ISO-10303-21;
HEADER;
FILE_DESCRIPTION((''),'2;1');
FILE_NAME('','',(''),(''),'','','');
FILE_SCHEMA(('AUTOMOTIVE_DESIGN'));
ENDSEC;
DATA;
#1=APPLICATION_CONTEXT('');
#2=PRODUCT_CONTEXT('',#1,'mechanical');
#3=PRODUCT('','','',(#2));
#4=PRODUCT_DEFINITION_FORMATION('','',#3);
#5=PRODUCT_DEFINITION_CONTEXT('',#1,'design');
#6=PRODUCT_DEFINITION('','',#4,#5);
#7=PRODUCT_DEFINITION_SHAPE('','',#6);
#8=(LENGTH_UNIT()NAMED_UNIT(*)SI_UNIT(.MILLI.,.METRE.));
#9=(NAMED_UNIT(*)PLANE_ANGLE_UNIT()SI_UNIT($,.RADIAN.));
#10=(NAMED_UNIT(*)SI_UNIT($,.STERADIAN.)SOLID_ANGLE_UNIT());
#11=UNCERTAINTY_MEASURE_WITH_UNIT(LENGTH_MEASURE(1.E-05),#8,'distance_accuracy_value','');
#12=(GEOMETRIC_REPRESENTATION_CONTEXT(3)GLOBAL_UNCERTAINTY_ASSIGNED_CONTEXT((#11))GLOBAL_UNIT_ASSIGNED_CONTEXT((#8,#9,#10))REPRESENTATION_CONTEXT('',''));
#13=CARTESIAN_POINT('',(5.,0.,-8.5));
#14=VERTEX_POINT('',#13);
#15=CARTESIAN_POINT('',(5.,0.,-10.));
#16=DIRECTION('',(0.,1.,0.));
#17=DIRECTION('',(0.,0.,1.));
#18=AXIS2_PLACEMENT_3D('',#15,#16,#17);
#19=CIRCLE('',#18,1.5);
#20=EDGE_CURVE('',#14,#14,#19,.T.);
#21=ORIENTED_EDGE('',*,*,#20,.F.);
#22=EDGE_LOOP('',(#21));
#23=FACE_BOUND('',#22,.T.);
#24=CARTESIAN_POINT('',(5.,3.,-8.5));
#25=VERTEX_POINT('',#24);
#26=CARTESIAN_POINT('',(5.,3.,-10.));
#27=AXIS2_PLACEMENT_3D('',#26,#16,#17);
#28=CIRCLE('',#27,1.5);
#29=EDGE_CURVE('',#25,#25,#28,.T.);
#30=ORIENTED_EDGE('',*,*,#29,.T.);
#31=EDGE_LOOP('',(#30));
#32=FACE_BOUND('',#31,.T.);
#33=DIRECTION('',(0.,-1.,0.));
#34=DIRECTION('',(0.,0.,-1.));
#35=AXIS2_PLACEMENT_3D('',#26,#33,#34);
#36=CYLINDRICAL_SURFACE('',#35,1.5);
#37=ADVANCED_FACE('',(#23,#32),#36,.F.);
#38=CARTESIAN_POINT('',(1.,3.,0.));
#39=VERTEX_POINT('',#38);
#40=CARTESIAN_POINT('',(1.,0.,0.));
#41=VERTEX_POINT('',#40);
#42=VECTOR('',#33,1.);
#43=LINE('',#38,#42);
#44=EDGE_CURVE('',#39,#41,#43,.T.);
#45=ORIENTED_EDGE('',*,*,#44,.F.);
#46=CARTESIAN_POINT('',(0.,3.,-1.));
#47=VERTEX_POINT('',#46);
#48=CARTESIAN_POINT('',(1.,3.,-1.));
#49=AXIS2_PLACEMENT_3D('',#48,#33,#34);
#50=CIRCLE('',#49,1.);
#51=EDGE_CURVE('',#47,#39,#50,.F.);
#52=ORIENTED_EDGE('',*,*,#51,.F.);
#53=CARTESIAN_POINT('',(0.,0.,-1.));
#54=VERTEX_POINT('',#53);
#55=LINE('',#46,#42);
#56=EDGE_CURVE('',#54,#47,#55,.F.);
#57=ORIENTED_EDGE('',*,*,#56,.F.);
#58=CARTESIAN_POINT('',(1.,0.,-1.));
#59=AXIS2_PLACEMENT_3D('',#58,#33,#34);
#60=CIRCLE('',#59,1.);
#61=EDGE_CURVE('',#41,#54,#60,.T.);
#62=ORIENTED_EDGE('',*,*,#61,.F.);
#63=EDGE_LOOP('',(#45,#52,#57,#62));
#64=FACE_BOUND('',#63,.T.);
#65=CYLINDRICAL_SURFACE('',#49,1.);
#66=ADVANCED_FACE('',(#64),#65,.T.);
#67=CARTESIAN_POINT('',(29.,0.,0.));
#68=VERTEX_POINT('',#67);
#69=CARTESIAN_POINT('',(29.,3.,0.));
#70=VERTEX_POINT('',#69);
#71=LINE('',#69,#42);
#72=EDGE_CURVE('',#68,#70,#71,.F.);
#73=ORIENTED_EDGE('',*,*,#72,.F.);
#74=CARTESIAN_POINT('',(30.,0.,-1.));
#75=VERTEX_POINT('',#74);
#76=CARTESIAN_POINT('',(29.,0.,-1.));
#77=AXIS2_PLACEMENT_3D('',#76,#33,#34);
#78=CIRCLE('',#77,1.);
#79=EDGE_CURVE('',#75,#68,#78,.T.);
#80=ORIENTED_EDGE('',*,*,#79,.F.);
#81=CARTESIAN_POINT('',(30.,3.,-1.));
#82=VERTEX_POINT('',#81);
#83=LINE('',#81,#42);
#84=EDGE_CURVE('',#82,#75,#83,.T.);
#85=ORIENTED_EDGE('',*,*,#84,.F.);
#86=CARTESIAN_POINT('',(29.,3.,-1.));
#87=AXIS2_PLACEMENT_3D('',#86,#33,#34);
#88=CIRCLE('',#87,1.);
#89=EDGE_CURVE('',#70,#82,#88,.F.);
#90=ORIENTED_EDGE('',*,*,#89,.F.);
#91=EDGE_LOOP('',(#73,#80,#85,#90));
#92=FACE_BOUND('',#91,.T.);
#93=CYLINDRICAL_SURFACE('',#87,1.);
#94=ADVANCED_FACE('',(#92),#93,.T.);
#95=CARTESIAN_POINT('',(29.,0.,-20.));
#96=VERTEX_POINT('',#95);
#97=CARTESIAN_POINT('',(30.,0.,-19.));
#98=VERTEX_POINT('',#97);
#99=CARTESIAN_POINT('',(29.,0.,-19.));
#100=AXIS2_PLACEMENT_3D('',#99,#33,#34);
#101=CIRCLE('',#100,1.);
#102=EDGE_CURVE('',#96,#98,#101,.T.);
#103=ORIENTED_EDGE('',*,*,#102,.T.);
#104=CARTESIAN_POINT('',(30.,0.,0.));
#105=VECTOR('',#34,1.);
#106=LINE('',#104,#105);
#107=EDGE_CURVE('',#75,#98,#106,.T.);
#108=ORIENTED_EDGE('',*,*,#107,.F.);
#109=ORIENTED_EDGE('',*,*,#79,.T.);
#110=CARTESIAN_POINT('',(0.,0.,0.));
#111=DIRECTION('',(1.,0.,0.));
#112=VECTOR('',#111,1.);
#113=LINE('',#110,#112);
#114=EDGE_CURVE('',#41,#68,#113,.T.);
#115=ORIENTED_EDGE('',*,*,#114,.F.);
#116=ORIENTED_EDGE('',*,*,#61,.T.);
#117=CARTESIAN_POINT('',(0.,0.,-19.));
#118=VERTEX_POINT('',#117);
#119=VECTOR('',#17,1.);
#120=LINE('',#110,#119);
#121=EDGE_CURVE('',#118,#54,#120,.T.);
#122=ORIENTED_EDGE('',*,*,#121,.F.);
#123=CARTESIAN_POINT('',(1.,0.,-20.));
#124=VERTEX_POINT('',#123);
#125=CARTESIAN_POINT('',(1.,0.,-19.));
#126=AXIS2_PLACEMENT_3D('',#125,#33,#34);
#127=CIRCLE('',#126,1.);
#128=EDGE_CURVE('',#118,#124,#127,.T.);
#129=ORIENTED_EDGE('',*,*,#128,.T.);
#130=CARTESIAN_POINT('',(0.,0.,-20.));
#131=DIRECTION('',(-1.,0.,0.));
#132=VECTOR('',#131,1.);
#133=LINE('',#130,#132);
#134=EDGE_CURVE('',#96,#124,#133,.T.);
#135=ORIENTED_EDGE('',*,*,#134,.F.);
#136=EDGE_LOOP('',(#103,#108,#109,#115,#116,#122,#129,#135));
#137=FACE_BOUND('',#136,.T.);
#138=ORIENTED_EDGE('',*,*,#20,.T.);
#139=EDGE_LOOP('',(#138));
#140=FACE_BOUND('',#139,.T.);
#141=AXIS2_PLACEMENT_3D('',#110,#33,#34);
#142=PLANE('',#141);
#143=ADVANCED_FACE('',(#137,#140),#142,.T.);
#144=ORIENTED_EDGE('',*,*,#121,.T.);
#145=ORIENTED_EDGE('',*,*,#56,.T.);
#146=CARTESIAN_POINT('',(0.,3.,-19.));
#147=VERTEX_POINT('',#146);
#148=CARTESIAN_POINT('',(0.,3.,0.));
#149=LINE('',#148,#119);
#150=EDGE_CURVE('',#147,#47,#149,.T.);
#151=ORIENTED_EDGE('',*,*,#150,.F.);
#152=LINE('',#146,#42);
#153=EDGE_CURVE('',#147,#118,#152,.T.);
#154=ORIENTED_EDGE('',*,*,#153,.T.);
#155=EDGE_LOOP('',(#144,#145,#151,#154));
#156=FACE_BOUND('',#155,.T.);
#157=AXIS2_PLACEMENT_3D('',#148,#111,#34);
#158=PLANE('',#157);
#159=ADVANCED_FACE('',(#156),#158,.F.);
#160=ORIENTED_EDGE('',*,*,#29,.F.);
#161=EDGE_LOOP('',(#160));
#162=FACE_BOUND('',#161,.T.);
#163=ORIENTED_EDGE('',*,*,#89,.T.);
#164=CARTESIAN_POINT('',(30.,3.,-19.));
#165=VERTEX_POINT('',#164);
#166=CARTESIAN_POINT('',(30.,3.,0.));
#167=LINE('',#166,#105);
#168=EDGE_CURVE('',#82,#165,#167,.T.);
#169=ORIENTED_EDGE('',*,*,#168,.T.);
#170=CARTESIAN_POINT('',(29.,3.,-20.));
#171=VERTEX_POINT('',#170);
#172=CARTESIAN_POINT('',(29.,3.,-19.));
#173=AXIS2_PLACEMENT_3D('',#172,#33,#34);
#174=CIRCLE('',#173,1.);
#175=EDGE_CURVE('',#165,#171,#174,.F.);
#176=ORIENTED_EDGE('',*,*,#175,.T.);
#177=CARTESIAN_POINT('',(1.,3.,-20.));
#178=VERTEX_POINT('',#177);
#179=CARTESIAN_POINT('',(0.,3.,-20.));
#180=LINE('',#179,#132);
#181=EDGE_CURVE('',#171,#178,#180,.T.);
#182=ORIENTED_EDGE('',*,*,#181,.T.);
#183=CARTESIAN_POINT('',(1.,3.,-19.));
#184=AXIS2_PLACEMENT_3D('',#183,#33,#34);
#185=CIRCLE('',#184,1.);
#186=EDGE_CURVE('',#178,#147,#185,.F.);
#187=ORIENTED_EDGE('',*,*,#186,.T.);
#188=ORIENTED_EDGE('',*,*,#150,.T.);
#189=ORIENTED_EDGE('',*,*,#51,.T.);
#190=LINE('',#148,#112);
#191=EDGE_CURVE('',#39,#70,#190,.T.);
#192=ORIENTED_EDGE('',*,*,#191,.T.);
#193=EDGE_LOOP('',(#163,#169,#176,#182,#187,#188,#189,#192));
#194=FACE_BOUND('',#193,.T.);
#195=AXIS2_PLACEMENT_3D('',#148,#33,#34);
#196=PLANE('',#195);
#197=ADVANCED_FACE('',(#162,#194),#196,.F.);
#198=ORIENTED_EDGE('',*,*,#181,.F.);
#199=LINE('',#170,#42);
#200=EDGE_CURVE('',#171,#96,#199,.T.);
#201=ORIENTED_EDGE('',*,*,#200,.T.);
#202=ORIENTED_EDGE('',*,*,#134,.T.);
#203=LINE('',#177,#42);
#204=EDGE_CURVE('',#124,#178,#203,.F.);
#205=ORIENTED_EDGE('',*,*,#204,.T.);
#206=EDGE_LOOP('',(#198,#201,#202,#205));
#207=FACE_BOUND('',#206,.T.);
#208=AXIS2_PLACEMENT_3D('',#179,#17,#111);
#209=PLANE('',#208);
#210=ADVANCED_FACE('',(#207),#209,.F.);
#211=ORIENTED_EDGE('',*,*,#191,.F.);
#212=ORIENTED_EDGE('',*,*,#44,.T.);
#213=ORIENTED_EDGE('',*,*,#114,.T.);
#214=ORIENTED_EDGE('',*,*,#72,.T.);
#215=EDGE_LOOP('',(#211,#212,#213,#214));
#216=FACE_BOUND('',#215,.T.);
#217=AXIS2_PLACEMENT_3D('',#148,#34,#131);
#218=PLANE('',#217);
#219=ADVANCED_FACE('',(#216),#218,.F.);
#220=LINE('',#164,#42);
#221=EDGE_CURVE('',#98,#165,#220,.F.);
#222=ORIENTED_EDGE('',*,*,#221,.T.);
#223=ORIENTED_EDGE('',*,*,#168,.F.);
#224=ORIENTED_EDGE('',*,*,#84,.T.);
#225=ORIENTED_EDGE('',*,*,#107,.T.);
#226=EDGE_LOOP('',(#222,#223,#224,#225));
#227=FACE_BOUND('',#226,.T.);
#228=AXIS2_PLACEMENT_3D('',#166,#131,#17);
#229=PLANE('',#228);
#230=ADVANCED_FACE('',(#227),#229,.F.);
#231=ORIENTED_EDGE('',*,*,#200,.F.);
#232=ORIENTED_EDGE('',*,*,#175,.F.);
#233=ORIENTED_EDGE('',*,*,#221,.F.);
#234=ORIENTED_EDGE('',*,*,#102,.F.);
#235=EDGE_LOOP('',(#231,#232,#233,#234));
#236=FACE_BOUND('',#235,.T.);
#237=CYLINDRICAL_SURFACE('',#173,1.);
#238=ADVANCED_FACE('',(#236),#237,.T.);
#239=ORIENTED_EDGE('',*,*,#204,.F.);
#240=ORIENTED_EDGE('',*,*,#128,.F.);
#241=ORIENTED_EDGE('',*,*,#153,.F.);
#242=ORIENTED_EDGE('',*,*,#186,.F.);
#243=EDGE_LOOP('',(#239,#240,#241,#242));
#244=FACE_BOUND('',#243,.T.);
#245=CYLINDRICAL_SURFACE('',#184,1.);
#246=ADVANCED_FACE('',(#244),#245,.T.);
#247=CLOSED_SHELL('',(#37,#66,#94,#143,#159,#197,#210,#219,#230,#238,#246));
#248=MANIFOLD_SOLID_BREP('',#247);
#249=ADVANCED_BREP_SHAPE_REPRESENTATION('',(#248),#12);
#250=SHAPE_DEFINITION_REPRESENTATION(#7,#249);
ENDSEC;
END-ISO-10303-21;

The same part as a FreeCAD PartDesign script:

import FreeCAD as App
import Part
import Sketcher


def edges_at(feature, points):
    """Names of the edges that pass closest to the given points."""
    edges = feature.Shape.Edges
    near = lambda p: min(range(len(edges)), key=lambda i: edges[i].distToShape(Part.Vertex(*p))[0])
    return sorted({f"Edge{near(p) + 1}" for p in points})


def add_polygon(sketch, points):
    """Adds a closed chain of lines whose ends are joined by coincident constraints."""
    first, n = sketch.GeometryCount, len(points)
    for a, b in zip(points, points[1:] + points[:1]):
        sketch.addGeometry(Part.LineSegment(App.Vector(*a, 0), App.Vector(*b, 0)), False)
    for i in range(n):
        sketch.addConstraint(Sketcher.Constraint("Coincident", first + i, 2, first + (i + 1) % n, 1))

doc = App.newDocument("Part")
body = doc.addObject("PartDesign::Body", "Body")

sketch1 = body.newObject("Sketcher::SketchObject", "Sketch")
sketch1.AttachmentSupport = (doc.getObject("XZ_Plane"), [""])
sketch1.MapMode = "FlatFace"
add_polygon(sketch1, [(0, -20), (0, 0), (30, 0), (30, -20)])
sketch1.addGeometry(Part.Circle(App.Vector(5, -10, 0), App.Vector(0, 0, 1), 1.5), False)
sketch1.addConstraint([
    Sketcher.Constraint("Vertical", 0),
    Sketcher.Constraint("Horizontal", 1),
    Sketcher.Constraint("Vertical", 2),
    Sketcher.Constraint("Horizontal", 3),
    Sketcher.Constraint("Coincident", 0, 2, -1, 1),
    Sketcher.Constraint("Diameter", 4, 3.0),
    Sketcher.Constraint("DistanceX", 1, 1, 1, 2, 30.0),
    Sketcher.Constraint("DistanceY", 0, 1, 0, 2, 20.0),
    Sketcher.Constraint("DistanceX", -1, 1, 4, 3, 5.0),
    Sketcher.Constraint("DistanceY", 4, 3, -1, 1, 10.0),
])
pad1 = body.newObject("PartDesign::Pad", "Pad")
pad1.Profile = sketch1
pad1.Length = 3
pad1.Reversed = True
doc.recompute()

fillet = body.newObject("PartDesign::Fillet", "Fillet")
fillet.Base = (pad1, edges_at(pad1, [
    (0, 1.5, -20),
    (30, 1.5, -20),
    (30, 1.5, 0),
    (0, 1.5, 0),
]))
fillet.Radius = 1

doc.recompute()
